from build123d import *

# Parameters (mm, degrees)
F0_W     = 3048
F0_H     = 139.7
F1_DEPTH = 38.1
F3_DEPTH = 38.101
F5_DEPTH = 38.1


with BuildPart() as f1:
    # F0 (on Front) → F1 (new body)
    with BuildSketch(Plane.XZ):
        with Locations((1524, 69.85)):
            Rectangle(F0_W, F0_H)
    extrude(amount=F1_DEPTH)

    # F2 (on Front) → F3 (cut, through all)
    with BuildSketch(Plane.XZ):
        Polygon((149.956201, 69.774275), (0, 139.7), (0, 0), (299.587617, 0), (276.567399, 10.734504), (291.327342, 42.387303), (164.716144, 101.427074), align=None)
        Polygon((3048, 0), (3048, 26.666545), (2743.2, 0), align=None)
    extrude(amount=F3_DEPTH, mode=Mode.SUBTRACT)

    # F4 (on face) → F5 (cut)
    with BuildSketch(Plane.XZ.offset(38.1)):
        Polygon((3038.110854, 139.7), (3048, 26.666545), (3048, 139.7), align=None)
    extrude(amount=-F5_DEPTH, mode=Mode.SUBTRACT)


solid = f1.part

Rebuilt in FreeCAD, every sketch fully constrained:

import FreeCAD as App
import Part
import Sketcher

V = App.Vector
Q = App.Units.Quantity


def add_polygon(sketch, points):
    """Adds a closed chain of lines whose ends are joined by coincident constraints."""
    first, n = sketch.GeometryCount, len(points)
    for a, b in zip(points, points[1:] + points[:1]):
        sketch.addGeometry(Part.LineSegment(App.Vector(*a, 0), App.Vector(*b, 0)), False)
    for i in range(n):
        sketch.addConstraint(Sketcher.Constraint("Coincident", first + i, 2, first + (i + 1) % n, 1))

doc = App.newDocument("Part")
params = doc.addObject("Spreadsheet::Sheet", "Params")
for row, (alias, value) in enumerate([
    ("sketch1_width", "120 in"),
    ("sketch1_height", "5.5 in"),
    ("pad1_length", "1.5 in"),
    ("sketch2_width", "12 in"),
    ("sketch2_length", "1 in"),
    ("sketch2_height", "5.5 in"),
    ("sketch2_length2", "5.5 in"),
    ("sketch2_length3", "1.375 in"),
    ("pocket2_length", "1.5 in"),
], start=1):
    params.set(f"A{row}", alias)
    params.set(f"B{row}", "=" + value)
    params.setAlias(f"B{row}", alias)

body = doc.addObject("PartDesign::Body", "Body")

# Sketch on XZ plane
sketch1 = doc.addObject("Sketcher::SketchObject", "Sketch")
body.addObject(sketch1)
sketch1.AttachmentSupport = (doc.XZ_Plane, [""])
sketch1.MapMode = "FlatFace"
add_polygon(sketch1, [(0, 140), (0, 0), (3048, 0), (3048, 140)])  # lines 0-3
sketch1.addConstraint(Sketcher.Constraint("Vertical", 0))
sketch1.addConstraint(Sketcher.Constraint("Horizontal", 1))
sketch1.addConstraint(Sketcher.Constraint("Vertical", 2))
sketch1.addConstraint(Sketcher.Constraint("Horizontal", 3))
sketch1.addConstraint(Sketcher.Constraint("Coincident", 0, 2, -1, 1))
sketch1.addConstraint(Sketcher.Constraint("DistanceX", 1, 1, 1, 2, Q("120 in")))
sketch1.addConstraint(Sketcher.Constraint("DistanceY", 0, 2, 0, 1, Q("5.5 in")))
sketch1.setExpression("Constraints[9]", "Params.sketch1_width")
sketch1.setExpression("Constraints[10]", "Params.sketch1_height")
pad1 = doc.addObject("PartDesign::Pad", "Pad")
body.addObject(pad1)
pad1.Profile = sketch1
pad1.setExpression("Length", "Params.pad1_length")

# Sketch on XZ plane
sketch2 = doc.addObject("Sketcher::SketchObject", "Sketch001")
body.addObject(sketch2)
sketch2.AttachmentSupport = (doc.XZ_Plane, [""])
sketch2.MapMode = "FlatFace"
add_polygon(sketch2, [(150, 70), (0, 140), (0, 0), (300, 0), (277, 11), (291, 42), (165, 101)])  # lines 0-6
add_polygon(sketch2, [(3048, 0), (3048, 27), (2743, 0)])  # lines 7-9
sketch2.addConstraint(Sketcher.Constraint("Vertical", 1))
sketch2.addConstraint(Sketcher.Constraint("Horizontal", 2))
sketch2.addConstraint(Sketcher.Constraint("Vertical", 7))
sketch2.addConstraint(Sketcher.Constraint("Horizontal", 9))
sketch2.addConstraint(Sketcher.Constraint("Coincident", 1, 2, -1, 1))
sketch2.addConstraint(Sketcher.Constraint("PointOnObject", 8, 2, -1))
sketch2.addConstraint(Sketcher.Constraint("Parallel", 0, 3))
sketch2.addConstraint(Sketcher.Constraint("Perpendicular", 3, 4))
sketch2.addConstraint(Sketcher.Constraint("Perpendicular", 4, 5))
sketch2.addConstraint(Sketcher.Constraint("Perpendicular", 5, 6))
sketch2.addConstraint(Sketcher.Constraint("Equal", 4, 6))
sketch2.addConstraint(Sketcher.Constraint("DistanceX", 9, 1, 9, 2, Q("12 in")))
sketch2.addConstraint(Sketcher.Constraint("Distance", 3, Q("1 in")))
sketch2.addConstraint(Sketcher.Constraint("DistanceY", 1, 2, 1, 1, Q("5.5 in")))
sketch2.addConstraint(Sketcher.Constraint("DistanceX", -1, 1, 7, 2, Q("120 in")))
sketch2.addConstraint(Sketcher.Constraint("Angle", 0, Q("155 deg")))
sketch2.addConstraint(Sketcher.Constraint("Angle", 8, Q("-175 deg")))
sketch2.addConstraint(Sketcher.Constraint("Distance", 5, Q("5.5 in")))
sketch2.addConstraint(Sketcher.Constraint("Distance", 4, Q("1.375 in")))
sketch2.setExpression("Constraints[21]", "Params.sketch2_width")
sketch2.setExpression("Constraints[22]", "Params.sketch2_length")
sketch2.setExpression("Constraints[23]", "Params.sketch2_height")
sketch2.setExpression("Constraints[27]", "Params.sketch2_length2")
sketch2.setExpression("Constraints[28]", "Params.sketch2_length3")
pocket1 = doc.addObject("PartDesign::Pocket", "Pocket")
body.addObject(pocket1)
pocket1.Profile = sketch2
pocket1.Type = "ThroughAll"
pocket1.Reversed = True

# Sketch on XZ plane
sketch3 = doc.addObject("Sketcher::SketchObject", "Sketch002")
body.addObject(sketch3)
sketch3.AttachmentSupport = (doc.XZ_Plane, [""])
sketch3.MapMode = "FlatFace"
sketch3.AttachmentOffset = App.Placement(V(0, 0, 1.5 * 25.4), App.Rotation())
add_polygon(sketch3, [(3038, 140), (3048, 27), (3048, 140)])  # lines 0-2
sketch3.addConstraint(Sketcher.Constraint("Vertical", 1))
sketch3.addConstraint(Sketcher.Constraint("Horizontal", 2))
sketch3.addConstraint(Sketcher.Constraint("DistanceX", -1, 1, 0, 2, Q("120 in")))
sketch3.addConstraint(Sketcher.Constraint("Angle", 0, Q("-85 deg")))
sketch3.addConstraint(Sketcher.Constraint("DistanceY", -1, 1, 1, 2, Q("5.5 in")))
sketch3.addConstraint(Sketcher.Constraint("DistanceX", 2, 2, 2, 1, 9.889146))
pocket2 = doc.addObject("PartDesign::Pocket", "Pocket001")
body.addObject(pocket2)
pocket2.Profile = sketch3
pocket2.setExpression("Length", "Params.pocket2_length")

doc.recompute()
